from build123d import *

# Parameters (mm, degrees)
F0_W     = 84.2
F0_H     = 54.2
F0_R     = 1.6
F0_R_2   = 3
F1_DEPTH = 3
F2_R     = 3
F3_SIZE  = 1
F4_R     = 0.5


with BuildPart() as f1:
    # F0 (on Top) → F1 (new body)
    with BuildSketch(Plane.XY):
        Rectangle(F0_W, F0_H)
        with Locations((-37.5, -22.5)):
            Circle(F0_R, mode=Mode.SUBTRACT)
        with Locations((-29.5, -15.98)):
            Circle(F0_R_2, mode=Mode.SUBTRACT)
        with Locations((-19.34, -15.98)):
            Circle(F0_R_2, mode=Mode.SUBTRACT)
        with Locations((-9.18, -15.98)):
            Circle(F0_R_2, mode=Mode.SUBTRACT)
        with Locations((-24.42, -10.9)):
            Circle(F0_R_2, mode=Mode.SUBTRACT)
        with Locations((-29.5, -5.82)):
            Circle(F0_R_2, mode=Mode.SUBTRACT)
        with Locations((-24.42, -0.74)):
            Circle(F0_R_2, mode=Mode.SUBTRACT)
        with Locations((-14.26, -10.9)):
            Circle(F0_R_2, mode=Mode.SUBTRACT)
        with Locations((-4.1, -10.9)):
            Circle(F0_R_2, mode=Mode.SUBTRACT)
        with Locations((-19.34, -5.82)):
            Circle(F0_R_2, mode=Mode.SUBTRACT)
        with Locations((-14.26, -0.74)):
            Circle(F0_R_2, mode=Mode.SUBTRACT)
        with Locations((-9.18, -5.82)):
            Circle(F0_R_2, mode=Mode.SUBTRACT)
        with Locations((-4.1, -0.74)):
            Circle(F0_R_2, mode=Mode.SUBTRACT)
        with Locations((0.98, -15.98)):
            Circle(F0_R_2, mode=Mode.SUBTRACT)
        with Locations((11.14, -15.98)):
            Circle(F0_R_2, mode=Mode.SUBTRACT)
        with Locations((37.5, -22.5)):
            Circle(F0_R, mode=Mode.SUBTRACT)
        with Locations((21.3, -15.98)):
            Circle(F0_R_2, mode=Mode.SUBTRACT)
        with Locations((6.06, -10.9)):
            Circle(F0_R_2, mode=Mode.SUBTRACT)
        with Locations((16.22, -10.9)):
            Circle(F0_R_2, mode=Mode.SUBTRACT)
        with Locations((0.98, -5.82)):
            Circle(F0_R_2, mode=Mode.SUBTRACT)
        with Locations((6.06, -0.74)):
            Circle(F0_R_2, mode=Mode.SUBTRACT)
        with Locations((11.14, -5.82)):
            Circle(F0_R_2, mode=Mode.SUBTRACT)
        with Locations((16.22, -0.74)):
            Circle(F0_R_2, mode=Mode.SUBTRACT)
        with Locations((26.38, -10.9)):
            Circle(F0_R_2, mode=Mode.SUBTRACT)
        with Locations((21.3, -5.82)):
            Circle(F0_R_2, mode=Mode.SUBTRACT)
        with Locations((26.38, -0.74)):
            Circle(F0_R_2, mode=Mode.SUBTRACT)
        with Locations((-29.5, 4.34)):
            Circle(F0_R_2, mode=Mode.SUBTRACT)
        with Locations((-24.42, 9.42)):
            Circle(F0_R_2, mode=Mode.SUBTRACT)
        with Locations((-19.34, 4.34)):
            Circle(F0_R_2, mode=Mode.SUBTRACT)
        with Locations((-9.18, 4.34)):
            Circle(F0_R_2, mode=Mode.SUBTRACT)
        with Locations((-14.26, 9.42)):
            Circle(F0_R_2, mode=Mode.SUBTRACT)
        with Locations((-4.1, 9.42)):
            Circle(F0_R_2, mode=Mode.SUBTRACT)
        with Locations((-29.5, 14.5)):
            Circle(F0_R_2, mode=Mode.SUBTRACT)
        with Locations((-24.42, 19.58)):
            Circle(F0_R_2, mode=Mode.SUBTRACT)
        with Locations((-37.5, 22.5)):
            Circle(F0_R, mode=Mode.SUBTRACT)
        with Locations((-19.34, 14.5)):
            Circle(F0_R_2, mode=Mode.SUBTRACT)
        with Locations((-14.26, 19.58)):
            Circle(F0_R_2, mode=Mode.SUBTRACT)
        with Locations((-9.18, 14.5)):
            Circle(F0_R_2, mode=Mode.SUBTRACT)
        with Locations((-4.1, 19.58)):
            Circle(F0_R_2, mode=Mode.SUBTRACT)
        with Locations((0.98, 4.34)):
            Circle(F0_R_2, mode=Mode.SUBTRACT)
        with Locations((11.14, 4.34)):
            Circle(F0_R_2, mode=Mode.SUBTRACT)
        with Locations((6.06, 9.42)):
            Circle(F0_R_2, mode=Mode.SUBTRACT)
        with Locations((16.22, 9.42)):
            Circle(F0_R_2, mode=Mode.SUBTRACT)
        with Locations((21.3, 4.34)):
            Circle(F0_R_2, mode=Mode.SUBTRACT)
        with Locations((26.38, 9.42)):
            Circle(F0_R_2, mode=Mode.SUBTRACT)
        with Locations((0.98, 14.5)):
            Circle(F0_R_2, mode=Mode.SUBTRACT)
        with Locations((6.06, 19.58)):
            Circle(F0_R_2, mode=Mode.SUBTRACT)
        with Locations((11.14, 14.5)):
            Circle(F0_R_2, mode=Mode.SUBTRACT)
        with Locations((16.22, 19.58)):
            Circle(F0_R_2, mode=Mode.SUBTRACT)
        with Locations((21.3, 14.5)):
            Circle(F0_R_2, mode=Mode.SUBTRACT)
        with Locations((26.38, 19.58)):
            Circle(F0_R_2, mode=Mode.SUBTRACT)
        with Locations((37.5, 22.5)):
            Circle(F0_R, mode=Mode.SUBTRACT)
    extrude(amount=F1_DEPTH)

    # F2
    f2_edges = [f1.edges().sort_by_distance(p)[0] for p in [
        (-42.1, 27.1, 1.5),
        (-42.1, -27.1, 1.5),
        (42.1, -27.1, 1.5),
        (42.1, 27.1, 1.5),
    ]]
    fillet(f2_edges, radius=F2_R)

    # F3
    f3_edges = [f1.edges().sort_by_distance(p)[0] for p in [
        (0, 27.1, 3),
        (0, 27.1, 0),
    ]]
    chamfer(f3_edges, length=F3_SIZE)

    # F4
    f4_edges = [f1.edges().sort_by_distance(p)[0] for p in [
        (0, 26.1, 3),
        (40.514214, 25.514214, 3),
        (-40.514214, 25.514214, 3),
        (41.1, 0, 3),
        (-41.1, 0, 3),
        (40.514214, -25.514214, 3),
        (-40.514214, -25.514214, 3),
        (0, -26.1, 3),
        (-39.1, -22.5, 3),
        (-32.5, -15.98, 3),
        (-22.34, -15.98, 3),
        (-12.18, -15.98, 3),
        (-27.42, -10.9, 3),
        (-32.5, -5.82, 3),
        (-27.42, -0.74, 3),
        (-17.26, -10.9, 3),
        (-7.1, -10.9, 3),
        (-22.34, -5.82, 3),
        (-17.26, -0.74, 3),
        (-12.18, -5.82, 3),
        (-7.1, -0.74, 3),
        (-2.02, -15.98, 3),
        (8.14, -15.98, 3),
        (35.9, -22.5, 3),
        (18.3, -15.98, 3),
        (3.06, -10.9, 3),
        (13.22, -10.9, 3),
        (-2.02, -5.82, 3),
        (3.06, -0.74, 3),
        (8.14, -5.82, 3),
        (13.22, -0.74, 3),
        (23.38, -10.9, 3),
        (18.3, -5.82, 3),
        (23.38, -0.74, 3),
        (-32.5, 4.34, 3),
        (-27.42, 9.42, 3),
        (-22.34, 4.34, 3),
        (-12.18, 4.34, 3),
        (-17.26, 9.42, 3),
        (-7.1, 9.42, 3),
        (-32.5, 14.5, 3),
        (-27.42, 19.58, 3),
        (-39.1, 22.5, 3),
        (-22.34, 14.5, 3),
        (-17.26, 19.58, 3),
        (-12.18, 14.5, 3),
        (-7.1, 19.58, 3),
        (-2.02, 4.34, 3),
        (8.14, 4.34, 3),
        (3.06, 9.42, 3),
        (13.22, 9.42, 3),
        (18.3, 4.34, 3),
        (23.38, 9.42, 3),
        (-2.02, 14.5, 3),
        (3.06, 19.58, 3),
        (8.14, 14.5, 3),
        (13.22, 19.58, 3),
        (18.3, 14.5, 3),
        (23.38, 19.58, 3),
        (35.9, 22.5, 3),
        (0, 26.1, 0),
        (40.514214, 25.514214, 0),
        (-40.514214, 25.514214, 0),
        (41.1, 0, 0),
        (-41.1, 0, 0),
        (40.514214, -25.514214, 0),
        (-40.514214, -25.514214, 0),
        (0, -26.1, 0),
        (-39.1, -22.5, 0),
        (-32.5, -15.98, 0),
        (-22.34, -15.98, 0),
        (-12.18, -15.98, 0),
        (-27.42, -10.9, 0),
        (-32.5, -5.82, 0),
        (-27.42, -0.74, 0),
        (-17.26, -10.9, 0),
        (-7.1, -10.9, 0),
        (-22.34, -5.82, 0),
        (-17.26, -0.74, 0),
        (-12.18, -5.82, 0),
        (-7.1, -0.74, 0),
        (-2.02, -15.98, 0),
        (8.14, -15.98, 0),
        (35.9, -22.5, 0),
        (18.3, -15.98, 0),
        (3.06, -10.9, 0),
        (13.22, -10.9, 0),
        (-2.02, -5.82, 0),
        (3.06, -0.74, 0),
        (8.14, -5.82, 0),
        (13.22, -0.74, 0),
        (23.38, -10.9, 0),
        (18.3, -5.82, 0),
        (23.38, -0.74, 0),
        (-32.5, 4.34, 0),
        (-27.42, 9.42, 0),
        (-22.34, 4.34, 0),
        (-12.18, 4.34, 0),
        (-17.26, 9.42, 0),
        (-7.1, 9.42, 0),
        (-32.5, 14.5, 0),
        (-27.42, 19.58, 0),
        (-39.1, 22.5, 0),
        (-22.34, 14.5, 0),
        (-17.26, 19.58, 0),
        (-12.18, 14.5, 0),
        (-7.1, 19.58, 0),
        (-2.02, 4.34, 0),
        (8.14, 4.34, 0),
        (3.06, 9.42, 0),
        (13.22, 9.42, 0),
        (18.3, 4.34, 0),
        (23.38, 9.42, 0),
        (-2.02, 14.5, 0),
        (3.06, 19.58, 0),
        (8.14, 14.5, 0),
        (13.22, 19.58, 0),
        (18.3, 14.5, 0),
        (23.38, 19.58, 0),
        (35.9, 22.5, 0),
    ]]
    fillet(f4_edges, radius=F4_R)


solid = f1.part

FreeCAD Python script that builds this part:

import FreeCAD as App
import Part
import Sketcher

V = App.Vector
Q = App.Units.Quantity


def edges_at(feature, points):
    """Names of the edges that pass closest to the given points."""
    edges = feature.Shape.Edges
    near = lambda p: min(range(len(edges)), key=lambda i: edges[i].distToShape(Part.Vertex(*p))[0])
    return sorted({f"Edge{near(p) + 1}" for p in points})

doc = App.newDocument("Part")
body = doc.addObject("PartDesign::Body", "Body")

# Sketch on XY plane
sketch1 = body.newObject("Sketcher::SketchObject", "Sketch")
sketch1.AttachmentSupport = (doc.getObject("XY_Plane"), [""])
sketch1.MapMode = "FlatFace"
sketch1.addGeometry(Part.LineSegment(V(-42.1, 27.1, 0), V(-42.1, -27.1, 0)), False)
sketch1.addGeometry(Part.LineSegment(V(-42.1, -27.1, 0), V(42.1, -27.1, 0)), False)
sketch1.addGeometry(Part.LineSegment(V(42.1, -27.1, 0), V(42.1, 27.1, 0)), False)
sketch1.addGeometry(Part.LineSegment(V(42.1, 27.1, 0), V(-42.1, 27.1, 0)), False)
sketch1.addGeometry(Part.Circle(V(-37.5, -22.5, 0), V(0, 0, 1), 1.6), False)
sketch1.addGeometry(Part.Circle(V(-29.5, -15.98, 0), V(0, 0, 1), 3), False)
sketch1.addGeometry(Part.Circle(V(-19.34, -15.98, 0), V(0, 0, 1), 3), False)
sketch1.addGeometry(Part.Circle(V(-9.18, -15.98, 0), V(0, 0, 1), 3), False)
sketch1.addGeometry(Part.Circle(V(-24.42, -10.9, 0), V(0, 0, 1), 3), False)
sketch1.addGeometry(Part.Circle(V(-29.5, -5.82, 0), V(0, 0, 1), 3), False)
sketch1.addGeometry(Part.Circle(V(-24.42, -0.74, 0), V(0, 0, 1), 3), False)
sketch1.addGeometry(Part.Circle(V(-14.26, -10.9, 0), V(0, 0, 1), 3), False)
sketch1.addGeometry(Part.Circle(V(-4.1, -10.9, 0), V(0, 0, 1), 3), False)
sketch1.addGeometry(Part.Circle(V(-19.34, -5.82, 0), V(0, 0, 1), 3), False)
sketch1.addGeometry(Part.Circle(V(-14.26, -0.74, 0), V(0, 0, 1), 3), False)
sketch1.addGeometry(Part.Circle(V(-9.18, -5.82, 0), V(0, 0, 1), 3), False)
sketch1.addGeometry(Part.Circle(V(-4.1, -0.74, 0), V(0, 0, 1), 3), False)
sketch1.addGeometry(Part.Circle(V(0.98, -15.98, 0), V(0, 0, 1), 3), False)
sketch1.addGeometry(Part.Circle(V(11.14, -15.98, 0), V(0, 0, 1), 3), False)
sketch1.addGeometry(Part.Circle(V(37.5, -22.5, 0), V(0, 0, 1), 1.6), False)
sketch1.addGeometry(Part.Circle(V(21.3, -15.98, 0), V(0, 0, 1), 3), False)
sketch1.addGeometry(Part.Circle(V(6.06, -10.9, 0), V(0, 0, 1), 3), False)
sketch1.addGeometry(Part.Circle(V(16.22, -10.9, 0), V(0, 0, 1), 3), False)
sketch1.addGeometry(Part.Circle(V(0.98, -5.82, 0), V(0, 0, 1), 3), False)
sketch1.addGeometry(Part.Circle(V(6.06, -0.74, 0), V(0, 0, 1), 3), False)
sketch1.addGeometry(Part.Circle(V(11.14, -5.82, 0), V(0, 0, 1), 3), False)
sketch1.addGeometry(Part.Circle(V(16.22, -0.74, 0), V(0, 0, 1), 3), False)
sketch1.addGeometry(Part.Circle(V(26.38, -10.9, 0), V(0, 0, 1), 3), False)
sketch1.addGeometry(Part.Circle(V(21.3, -5.82, 0), V(0, 0, 1), 3), False)
sketch1.addGeometry(Part.Circle(V(26.38, -0.74, 0), V(0, 0, 1), 3), False)
sketch1.addGeometry(Part.Circle(V(-29.5, 4.34, 0), V(0, 0, 1), 3), False)
sketch1.addGeometry(Part.Circle(V(-24.42, 9.42, 0), V(0, 0, 1), 3), False)
sketch1.addGeometry(Part.Circle(V(-19.34, 4.34, 0), V(0, 0, 1), 3), False)
sketch1.addGeometry(Part.Circle(V(-9.18, 4.34, 0), V(0, 0, 1), 3), False)
sketch1.addGeometry(Part.Circle(V(-14.26, 9.42, 0), V(0, 0, 1), 3), False)
sketch1.addGeometry(Part.Circle(V(-4.1, 9.42, 0), V(0, 0, 1), 3), False)
sketch1.addGeometry(Part.Circle(V(-29.5, 14.5, 0), V(0, 0, 1), 3), False)
sketch1.addGeometry(Part.Circle(V(-37.5, 22.5, 0), V(0, 0, 1), 1.6), False)
sketch1.addGeometry(Part.Circle(V(-24.42, 19.58, 0), V(0, 0, 1), 3), False)
sketch1.addGeometry(Part.Circle(V(-19.34, 14.5, 0), V(0, 0, 1), 3), False)
sketch1.addGeometry(Part.Circle(V(-9.18, 14.5, 0), V(0, 0, 1), 3), False)
sketch1.addGeometry(Part.Circle(V(-14.26, 19.58, 0), V(0, 0, 1), 3), False)
sketch1.addGeometry(Part.Circle(V(-4.1, 19.58, 0), V(0, 0, 1), 3), False)
sketch1.addGeometry(Part.Circle(V(0.98, 4.34, 0), V(0, 0, 1), 3), False)
sketch1.addGeometry(Part.Circle(V(11.14, 4.34, 0), V(0, 0, 1), 3), False)
sketch1.addGeometry(Part.Circle(V(6.06, 9.42, 0), V(0, 0, 1), 3), False)
sketch1.addGeometry(Part.Circle(V(16.22, 9.42, 0), V(0, 0, 1), 3), False)
sketch1.addGeometry(Part.Circle(V(21.3, 4.34, 0), V(0, 0, 1), 3), False)
sketch1.addGeometry(Part.Circle(V(26.38, 9.42, 0), V(0, 0, 1), 3), False)
sketch1.addGeometry(Part.Circle(V(0.98, 14.5, 0), V(0, 0, 1), 3), False)
sketch1.addGeometry(Part.Circle(V(11.14, 14.5, 0), V(0, 0, 1), 3), False)
sketch1.addGeometry(Part.Circle(V(6.06, 19.58, 0), V(0, 0, 1), 3), False)
sketch1.addGeometry(Part.Circle(V(16.22, 19.58, 0), V(0, 0, 1), 3), False)
sketch1.addGeometry(Part.Circle(V(21.3, 14.5, 0), V(0, 0, 1), 3), False)
sketch1.addGeometry(Part.Circle(V(26.38, 19.58, 0), V(0, 0, 1), 3), False)
sketch1.addGeometry(Part.Circle(V(37.5, 22.5, 0), V(0, 0, 1), 1.6), False)
sketch1.addConstraint(Sketcher.Constraint("Coincident", 0, 2, 1, 1))
sketch1.addConstraint(Sketcher.Constraint("Coincident", 1, 2, 2, 1))
sketch1.addConstraint(Sketcher.Constraint("Coincident", 2, 2, 3, 1))
sketch1.addConstraint(Sketcher.Constraint("Coincident", 3, 2, 0, 1))
sketch1.addConstraint(Sketcher.Constraint("Vertical", 0))
sketch1.addConstraint(Sketcher.Constraint("Horizontal", 1))
sketch1.addConstraint(Sketcher.Constraint("Vertical", 2))
sketch1.addConstraint(Sketcher.Constraint("Horizontal", 3))
sketch1.addConstraint(Sketcher.Constraint("Equal", 5, 6))
sketch1.addConstraint(Sketcher.Constraint("Equal", 6, 7))
sketch1.addConstraint(Sketcher.Constraint("Equal", 7, 8))
sketch1.addConstraint(Sketcher.Constraint("Equal", 8, 9))
sketch1.addConstraint(Sketcher.Constraint("Equal", 9, 10))
sketch1.addConstraint(Sketcher.Constraint("Equal", 10, 11))
sketch1.addConstraint(Sketcher.Constraint("Equal", 11, 12))
sketch1.addConstraint(Sketcher.Constraint("Equal", 12, 13))
sketch1.addConstraint(Sketcher.Constraint("Equal", 13, 14))
sketch1.addConstraint(Sketcher.Constraint("Equal", 14, 15))
sketch1.addConstraint(Sketcher.Constraint("Equal", 15, 16))
sketch1.addConstraint(Sketcher.Constraint("Equal", 16, 17))
sketch1.addConstraint(Sketcher.Constraint("Equal", 17, 18))
sketch1.addConstraint(Sketcher.Constraint("Equal", 4, 19))
sketch1.addConstraint(Sketcher.Constraint("Equal", 18, 20))
sketch1.addConstraint(Sketcher.Constraint("Equal", 20, 21))
sketch1.addConstraint(Sketcher.Constraint("Equal", 21, 22))
sketch1.addConstraint(Sketcher.Constraint("Equal", 22, 23))
sketch1.addConstraint(Sketcher.Constraint("Equal", 23, 24))
sketch1.addConstraint(Sketcher.Constraint("Equal", 24, 25))
sketch1.addConstraint(Sketcher.Constraint("Equal", 25, 26))
sketch1.addConstraint(Sketcher.Constraint("Equal", 26, 27))
sketch1.addConstraint(Sketcher.Constraint("Equal", 27, 28))
sketch1.addConstraint(Sketcher.Constraint("Equal", 28, 29))
sketch1.addConstraint(Sketcher.Constraint("Equal", 29, 30))
sketch1.addConstraint(Sketcher.Constraint("Equal", 30, 31))
sketch1.addConstraint(Sketcher.Constraint("Equal", 31, 32))
sketch1.addConstraint(Sketcher.Constraint("Equal", 32, 33))
sketch1.addConstraint(Sketcher.Constraint("Equal", 33, 34))
sketch1.addConstraint(Sketcher.Constraint("Equal", 34, 35))
sketch1.addConstraint(Sketcher.Constraint("Equal", 35, 36))
sketch1.addConstraint(Sketcher.Constraint("Equal", 19, 37))
sketch1.addConstraint(Sketcher.Constraint("Equal", 36, 38))
sketch1.addConstraint(Sketcher.Constraint("Equal", 38, 39))
sketch1.addConstraint(Sketcher.Constraint("Equal", 39, 40))
sketch1.addConstraint(Sketcher.Constraint("Equal", 40, 41))
sketch1.addConstraint(Sketcher.Constraint("Equal", 41, 42))
sketch1.addConstraint(Sketcher.Constraint("Equal", 42, 43))
sketch1.addConstraint(Sketcher.Constraint("Equal", 43, 44))
sketch1.addConstraint(Sketcher.Constraint("Equal", 44, 45))
sketch1.addConstraint(Sketcher.Constraint("Equal", 45, 46))
sketch1.addConstraint(Sketcher.Constraint("Equal", 46, 47))
sketch1.addConstraint(Sketcher.Constraint("Equal", 47, 48))
sketch1.addConstraint(Sketcher.Constraint("Equal", 48, 49))
sketch1.addConstraint(Sketcher.Constraint("Equal", 49, 50))
sketch1.addConstraint(Sketcher.Constraint("Equal", 50, 51))
sketch1.addConstraint(Sketcher.Constraint("Equal", 51, 52))
sketch1.addConstraint(Sketcher.Constraint("Equal", 52, 53))
sketch1.addConstraint(Sketcher.Constraint("Equal", 53, 54))
sketch1.addConstraint(Sketcher.Constraint("Equal", 37, 55))
sketch1.addConstraint(Sketcher.Constraint("Symmetric", 19, 3, 37, 3, -1, 1))
sketch1.addConstraint(Sketcher.Constraint("Symmetric", 4, 3, 55, 3, -1, 1))
sketch1.addConstraint(Sketcher.Constraint("Symmetric", 0, 2, 2, 2, -1, 1))
sketch1.addConstraint(Sketcher.Constraint("Symmetric", 4, 3, 19, 3, -2))
sketch1.addConstraint(Sketcher.Constraint("Horizontal", 5, 3, 6, 3))
sketch1.addConstraint(Sketcher.Constraint("Horizontal", 6, 3, 7, 3))
sketch1.addConstraint(Sketcher.Constraint("Horizontal", 8, 3, 11, 3))
sketch1.addConstraint(Sketcher.Constraint("Horizontal", 11, 3, 12, 3))
sketch1.addConstraint(Sketcher.Constraint("Horizontal", 9, 3, 13, 3))
sketch1.addConstraint(Sketcher.Constraint("Horizontal", 10, 3, 14, 3))
sketch1.addConstraint(Sketcher.Constraint("Horizontal", 13, 3, 15, 3))
sketch1.addConstraint(Sketcher.Constraint("Horizontal", 14, 3, 16, 3))
sketch1.addConstraint(Sketcher.Constraint("Horizontal", 7, 3, 17, 3))
sketch1.addConstraint(Sketcher.Constraint("Horizontal", 17, 3, 18, 3))
sketch1.addConstraint(Sketcher.Constraint("Horizontal", 18, 3, 20, 3))
sketch1.addConstraint(Sketcher.Constraint("Horizontal", 12, 3, 21, 3))
sketch1.addConstraint(Sketcher.Constraint("Horizontal", 21, 3, 22, 3))
sketch1.addConstraint(Sketcher.Constraint("Horizontal", 15, 3, 23, 3))
sketch1.addConstraint(Sketcher.Constraint("Horizontal", 16, 3, 24, 3))
sketch1.addConstraint(Sketcher.Constraint("Horizontal", 23, 3, 25, 3))
sketch1.addConstraint(Sketcher.Constraint("Horizontal", 24, 3, 26, 3))
sketch1.addConstraint(Sketcher.Constraint("Horizontal", 22, 3, 27, 3))
sketch1.addConstraint(Sketcher.Constraint("Horizontal", 25, 3, 28, 3))
sketch1.addConstraint(Sketcher.Constraint("Horizontal", 26, 3, 29, 3))
sketch1.addConstraint(Sketcher.Constraint("Horizontal", 30, 3, 32, 3))
sketch1.addConstraint(Sketcher.Constraint("Horizontal", 32, 3, 33, 3))
sketch1.addConstraint(Sketcher.Constraint("Horizontal", 31, 3, 34, 3))
sketch1.addConstraint(Sketcher.Constraint("Horizontal", 34, 3, 35, 3))
sketch1.addConstraint(Sketcher.Constraint("Horizontal", 36, 3, 39, 3))
sketch1.addConstraint(Sketcher.Constraint("Horizontal", 39, 3, 40, 3))
sketch1.addConstraint(Sketcher.Constraint("Horizontal", 38, 3, 41, 3))
sketch1.addConstraint(Sketcher.Constraint("Horizontal", 41, 3, 42, 3))
sketch1.addConstraint(Sketcher.Constraint("Horizontal", 33, 3, 43, 3))
sketch1.addConstraint(Sketcher.Constraint("Horizontal", 43, 3, 44, 3))
sketch1.addConstraint(Sketcher.Constraint("Horizontal", 35, 3, 45, 3))
sketch1.addConstraint(Sketcher.Constraint("Horizontal", 45, 3, 46, 3))
sketch1.addConstraint(Sketcher.Constraint("Horizontal", 44, 3, 47, 3))
sketch1.addConstraint(Sketcher.Constraint("Horizontal", 46, 3, 48, 3))
sketch1.addConstraint(Sketcher.Constraint("Horizontal", 40, 3, 49, 3))
sketch1.addConstraint(Sketcher.Constraint("Horizontal", 49, 3, 50, 3))
sketch1.addConstraint(Sketcher.Constraint("Horizontal", 42, 3, 51, 3))
sketch1.addConstraint(Sketcher.Constraint("Horizontal", 51, 3, 52, 3))
sketch1.addConstraint(Sketcher.Constraint("Horizontal", 50, 3, 53, 3))
sketch1.addConstraint(Sketcher.Constraint("Horizontal", 52, 3, 54, 3))
sketch1.addConstraint(Sketcher.Constraint("Vertical", 5, 3, 9, 3))
sketch1.addConstraint(Sketcher.Constraint("Vertical", 8, 3, 10, 3))
sketch1.addConstraint(Sketcher.Constraint("Vertical", 6, 3, 13, 3))
sketch1.addConstraint(Sketcher.Constraint("Vertical", 11, 3, 14, 3))
sketch1.addConstraint(Sketcher.Constraint("Vertical", 7, 3, 15, 3))
sketch1.addConstraint(Sketcher.Constraint("Vertical", 12, 3, 16, 3))
sketch1.addConstraint(Sketcher.Constraint("Vertical", 17, 3, 23, 3))
sketch1.addConstraint(Sketcher.Constraint("Vertical", 21, 3, 24, 3))
sketch1.addConstraint(Sketcher.Constraint("Vertical", 18, 3, 25, 3))
sketch1.addConstraint(Sketcher.Constraint("Vertical", 22, 3, 26, 3))
sketch1.addConstraint(Sketcher.Constraint("Vertical", 20, 3, 28, 3))
sketch1.addConstraint(Sketcher.Constraint("Vertical", 27, 3, 29, 3))
sketch1.addConstraint(Sketcher.Constraint("Vertical", 9, 3, 30, 3))
sketch1.addConstraint(Sketcher.Constraint("Vertical", 10, 3, 31, 3))
sketch1.addConstraint(Sketcher.Constraint("Vertical", 13, 3, 32, 3))
sketch1.addConstraint(Sketcher.Constraint("Vertical", 15, 3, 33, 3))
sketch1.addConstraint(Sketcher.Constraint("Vertical", 14, 3, 34, 3))
sketch1.addConstraint(Sketcher.Constraint("Vertical", 16, 3, 35, 3))
sketch1.addConstraint(Sketcher.Constraint("Vertical", 30, 3, 36, 3))
sketch1.addConstraint(Sketcher.Constraint("Vertical", 31, 3, 38, 3))
sketch1.addConstraint(Sketcher.Constraint("Vertical", 32, 3, 39, 3))
sketch1.addConstraint(Sketcher.Constraint("Vertical", 33, 3, 40, 3))
sketch1.addConstraint(Sketcher.Constraint("Vertical", 34, 3, 41, 3))
sketch1.addConstraint(Sketcher.Constraint("Vertical", 35, 3, 42, 3))
sketch1.addConstraint(Sketcher.Constraint("Vertical", 23, 3, 43, 3))
sketch1.addConstraint(Sketcher.Constraint("Vertical", 25, 3, 44, 3))
sketch1.addConstraint(Sketcher.Constraint("Vertical", 24, 3, 45, 3))
sketch1.addConstraint(Sketcher.Constraint("Vertical", 26, 3, 46, 3))
sketch1.addConstraint(Sketcher.Constraint("Vertical", 28, 3, 47, 3))
sketch1.addConstraint(Sketcher.Constraint("Vertical", 29, 3, 48, 3))
sketch1.addConstraint(Sketcher.Constraint("Vertical", 43, 3, 49, 3))
sketch1.addConstraint(Sketcher.Constraint("Vertical", 44, 3, 50, 3))
sketch1.addConstraint(Sketcher.Constraint("Vertical", 45, 3, 51, 3))
sketch1.addConstraint(Sketcher.Constraint("Vertical", 46, 3, 52, 3))
sketch1.addConstraint(Sketcher.Constraint("Vertical", 47, 3, 53, 3))
sketch1.addConstraint(Sketcher.Constraint("Vertical", 48, 3, 54, 3))
sketch1.addConstraint(Sketcher.Constraint("Diameter", 5, Q("6 mm")))
sketch1.addConstraint(Sketcher.Constraint("Diameter", 4, Q("3.2 mm")))
sketch1.addConstraint(Sketcher.Constraint("DistanceX", 1, 1, 1, 2, Q("84.2 mm")))
sketch1.addConstraint(Sketcher.Constraint("DistanceY", 0, 2, 0, 1, Q("54.2 mm")))
sketch1.addConstraint(Sketcher.Constraint("DistanceX", 4, 3, 5, 3, Q("8 mm")))
sketch1.addConstraint(Sketcher.Constraint("DistanceY", 36, 3, 37, 3, Q("8 mm")))
sketch1.addConstraint(Sketcher.Constraint("DistanceX", 4, 3, -1, 1, Q("37.5 mm")))
sketch1.addConstraint(Sketcher.Constraint("DistanceY", 4, 3, -1, 1, Q("22.5 mm")))
sketch1.addConstraint(Sketcher.Constraint("DistanceY", 8, 3, -1, 1, Q("10.9 mm")))
sketch1.addConstraint(Sketcher.Constraint("DistanceX", 12, 3, -1, 1, Q("4.1 mm")))
sketch1.addConstraint(Sketcher.Constraint("DistanceX", -1, 1, 20, 3, Q("21.3 mm")))
sketch1.addConstraint(Sketcher.Constraint("DistanceY", 5, 3, -1, 1, Q("15.98 mm")))
sketch1.addConstraint(Sketcher.Constraint("DistanceX", 6, 3, -1, 1, Q("19.34 mm")))
sketch1.addConstraint(Sketcher.Constraint("DistanceX", 7, 3, -1, 1, Q("9.18 mm")))
sketch1.addConstraint(Sketcher.Constraint("DistanceX", 8, 3, -1, 1, Q("24.42 mm")))
sketch1.addConstraint(Sketcher.Constraint("DistanceY", 9, 3, -1, 1, Q("5.82 mm")))
sketch1.addConstraint(Sketcher.Constraint("DistanceY", 10, 3, -1, 1, Q("0.74 mm")))
sketch1.addConstraint(Sketcher.Constraint("DistanceX", 11, 3, -1, 1, Q("14.26 mm")))
sketch1.addConstraint(Sketcher.Constraint("DistanceX", -1, 1, 17, 3, Q("0.98 mm")))
sketch1.addConstraint(Sketcher.Constraint("DistanceX", -1, 1, 18, 3, Q("11.14 mm")))
sketch1.addConstraint(Sketcher.Constraint("DistanceX", -1, 1, 21, 3, Q("6.06 mm")))
sketch1.addConstraint(Sketcher.Constraint("DistanceX", -1, 1, 22, 3, Q("16.22 mm")))
sketch1.addConstraint(Sketcher.Constraint("DistanceX", -1, 1, 27, 3, Q("26.38 mm")))
sketch1.addConstraint(Sketcher.Constraint("DistanceY", -1, 1, 30, 3, Q("4.34 mm")))
sketch1.addConstraint(Sketcher.Constraint("DistanceY", -1, 1, 31, 3, Q("9.42 mm")))
sketch1.addConstraint(Sketcher.Constraint("DistanceY", -1, 1, 38, 3, Q("19.58 mm")))
pad1 = body.newObject("PartDesign::Pad", "Pad")
pad1.Profile = sketch1
pad1.Length = 3
doc.recompute()

fillet = body.newObject("PartDesign::Fillet", "Fillet")
fillet.Base = (pad1, edges_at(pad1, [
    (-42.1, 27.1, 1.5),
    (-42.1, -27.1, 1.5),
    (42.1, -27.1, 1.5),
    (42.1, 27.1, 1.5),
]))
fillet.Radius = 3
doc.recompute()

chamfer = body.newObject("PartDesign::Chamfer", "Chamfer")
chamfer.Base = (fillet, edges_at(fillet, [(0, 27.1, 3), (0, 27.1, 0)]))
chamfer.Size = 1
doc.recompute()

fillet2 = body.newObject("PartDesign::Fillet", "Fillet001")
fillet2.Base = (chamfer, edges_at(chamfer, [
    (0, 26.1, 3),
    (40.514, 25.514, 3),
    (-40.514, 25.514, 3),
    (41.1, 0, 3),
    (-41.1, 0, 3),
    (40.514, -25.514, 3),
    (-40.514, -25.514, 3),
    (0, -26.1, 3),
    (-39.1, -22.5, 3),
    (-32.5, -15.98, 3),
    (-22.34, -15.98, 3),
    (-12.18, -15.98, 3),
    (-27.42, -10.9, 3),
    (-32.5, -5.82, 3),
    (-27.42, -0.74, 3),
    (-17.26, -10.9, 3),
    (-7.1, -10.9, 3),
    (-22.34, -5.82, 3),
    (-17.26, -0.74, 3),
    (-12.18, -5.82, 3),
    (-7.1, -0.74, 3),
    (-2.02, -15.98, 3),
    (8.14, -15.98, 3),
    (35.9, -22.5, 3),
    (18.3, -15.98, 3),
    (3.06, -10.9, 3),
    (13.22, -10.9, 3),
    (-2.02, -5.82, 3),
    (3.06, -0.74, 3),
    (8.14, -5.82, 3),
    (13.22, -0.74, 3),
    (23.38, -10.9, 3),
    (18.3, -5.82, 3),
    (23.38, -0.74, 3),
    (-32.5, 4.34, 3),
    (-27.42, 9.42, 3),
    (-22.34, 4.34, 3),
    (-12.18, 4.34, 3),
    (-17.26, 9.42, 3),
    (-7.1, 9.42, 3),
    (-32.5, 14.5, 3),
    (-27.42, 19.58, 3),
    (-39.1, 22.5, 3),
    (-22.34, 14.5, 3),
    (-17.26, 19.58, 3),
    (-12.18, 14.5, 3),
    (-7.1, 19.58, 3),
    (-2.02, 4.34, 3),
    (8.14, 4.34, 3),
    (3.06, 9.42, 3),
    (13.22, 9.42, 3),
    (18.3, 4.34, 3),
    (23.38, 9.42, 3),
    (-2.02, 14.5, 3),
    (3.06, 19.58, 3),
    (8.14, 14.5, 3),
    (13.22, 19.58, 3),
    (18.3, 14.5, 3),
    (23.38, 19.58, 3),
    (35.9, 22.5, 3),
    (0, 26.1, 0),
    (40.514, 25.514, 0),
    (-40.514, 25.514, 0),
    (41.1, 0, 0),
    (-41.1, 0, 0),
    (40.514, -25.514, 0),
    (-40.514, -25.514, 0),
    (0, -26.1, 0),
    (-39.1, -22.5, 0),
    (-32.5, -15.98, 0),
    (-22.34, -15.98, 0),
    (-12.18, -15.98, 0),
    (-27.42, -10.9, 0),
    (-32.5, -5.82, 0),
    (-27.42, -0.74, 0),
    (-17.26, -10.9, 0),
    (-7.1, -10.9, 0),
    (-22.34, -5.82, 0),
    (-17.26, -0.74, 0),
    (-12.18, -5.82, 0),
    (-7.1, -0.74, 0),
    (-2.02, -15.98, 0),
    (8.14, -15.98, 0),
    (35.9, -22.5, 0),
    (18.3, -15.98, 0),
    (3.06, -10.9, 0),
    (13.22, -10.9, 0),
    (-2.02, -5.82, 0),
    (3.06, -0.74, 0),
    (8.14, -5.82, 0),
    (13.22, -0.74, 0),
    (23.38, -10.9, 0),
    (18.3, -5.82, 0),
    (23.38, -0.74, 0),
    (-32.5, 4.34, 0),
    (-27.42, 9.42, 0),
    (-22.34, 4.34, 0),
    (-12.18, 4.34, 0),
    (-17.26, 9.42, 0),
    (-7.1, 9.42, 0),
    (-32.5, 14.5, 0),
    (-27.42, 19.58, 0),
    (-39.1, 22.5, 0),
    (-22.34, 14.5, 0),
    (-17.26, 19.58, 0),
    (-12.18, 14.5, 0),
    (-7.1, 19.58, 0),
    (-2.02, 4.34, 0),
    (8.14, 4.34, 0),
    (3.06, 9.42, 0),
    (13.22, 9.42, 0),
    (18.3, 4.34, 0),
    (23.38, 9.42, 0),
    (-2.02, 14.5, 0),
    (3.06, 19.58, 0),
    (8.14, 14.5, 0),
    (13.22, 19.58, 0),
    (18.3, 14.5, 0),
    (23.38, 19.58, 0),
    (35.9, 22.5, 0),
]))
fillet2.Radius = 0.5

doc.recompute()
